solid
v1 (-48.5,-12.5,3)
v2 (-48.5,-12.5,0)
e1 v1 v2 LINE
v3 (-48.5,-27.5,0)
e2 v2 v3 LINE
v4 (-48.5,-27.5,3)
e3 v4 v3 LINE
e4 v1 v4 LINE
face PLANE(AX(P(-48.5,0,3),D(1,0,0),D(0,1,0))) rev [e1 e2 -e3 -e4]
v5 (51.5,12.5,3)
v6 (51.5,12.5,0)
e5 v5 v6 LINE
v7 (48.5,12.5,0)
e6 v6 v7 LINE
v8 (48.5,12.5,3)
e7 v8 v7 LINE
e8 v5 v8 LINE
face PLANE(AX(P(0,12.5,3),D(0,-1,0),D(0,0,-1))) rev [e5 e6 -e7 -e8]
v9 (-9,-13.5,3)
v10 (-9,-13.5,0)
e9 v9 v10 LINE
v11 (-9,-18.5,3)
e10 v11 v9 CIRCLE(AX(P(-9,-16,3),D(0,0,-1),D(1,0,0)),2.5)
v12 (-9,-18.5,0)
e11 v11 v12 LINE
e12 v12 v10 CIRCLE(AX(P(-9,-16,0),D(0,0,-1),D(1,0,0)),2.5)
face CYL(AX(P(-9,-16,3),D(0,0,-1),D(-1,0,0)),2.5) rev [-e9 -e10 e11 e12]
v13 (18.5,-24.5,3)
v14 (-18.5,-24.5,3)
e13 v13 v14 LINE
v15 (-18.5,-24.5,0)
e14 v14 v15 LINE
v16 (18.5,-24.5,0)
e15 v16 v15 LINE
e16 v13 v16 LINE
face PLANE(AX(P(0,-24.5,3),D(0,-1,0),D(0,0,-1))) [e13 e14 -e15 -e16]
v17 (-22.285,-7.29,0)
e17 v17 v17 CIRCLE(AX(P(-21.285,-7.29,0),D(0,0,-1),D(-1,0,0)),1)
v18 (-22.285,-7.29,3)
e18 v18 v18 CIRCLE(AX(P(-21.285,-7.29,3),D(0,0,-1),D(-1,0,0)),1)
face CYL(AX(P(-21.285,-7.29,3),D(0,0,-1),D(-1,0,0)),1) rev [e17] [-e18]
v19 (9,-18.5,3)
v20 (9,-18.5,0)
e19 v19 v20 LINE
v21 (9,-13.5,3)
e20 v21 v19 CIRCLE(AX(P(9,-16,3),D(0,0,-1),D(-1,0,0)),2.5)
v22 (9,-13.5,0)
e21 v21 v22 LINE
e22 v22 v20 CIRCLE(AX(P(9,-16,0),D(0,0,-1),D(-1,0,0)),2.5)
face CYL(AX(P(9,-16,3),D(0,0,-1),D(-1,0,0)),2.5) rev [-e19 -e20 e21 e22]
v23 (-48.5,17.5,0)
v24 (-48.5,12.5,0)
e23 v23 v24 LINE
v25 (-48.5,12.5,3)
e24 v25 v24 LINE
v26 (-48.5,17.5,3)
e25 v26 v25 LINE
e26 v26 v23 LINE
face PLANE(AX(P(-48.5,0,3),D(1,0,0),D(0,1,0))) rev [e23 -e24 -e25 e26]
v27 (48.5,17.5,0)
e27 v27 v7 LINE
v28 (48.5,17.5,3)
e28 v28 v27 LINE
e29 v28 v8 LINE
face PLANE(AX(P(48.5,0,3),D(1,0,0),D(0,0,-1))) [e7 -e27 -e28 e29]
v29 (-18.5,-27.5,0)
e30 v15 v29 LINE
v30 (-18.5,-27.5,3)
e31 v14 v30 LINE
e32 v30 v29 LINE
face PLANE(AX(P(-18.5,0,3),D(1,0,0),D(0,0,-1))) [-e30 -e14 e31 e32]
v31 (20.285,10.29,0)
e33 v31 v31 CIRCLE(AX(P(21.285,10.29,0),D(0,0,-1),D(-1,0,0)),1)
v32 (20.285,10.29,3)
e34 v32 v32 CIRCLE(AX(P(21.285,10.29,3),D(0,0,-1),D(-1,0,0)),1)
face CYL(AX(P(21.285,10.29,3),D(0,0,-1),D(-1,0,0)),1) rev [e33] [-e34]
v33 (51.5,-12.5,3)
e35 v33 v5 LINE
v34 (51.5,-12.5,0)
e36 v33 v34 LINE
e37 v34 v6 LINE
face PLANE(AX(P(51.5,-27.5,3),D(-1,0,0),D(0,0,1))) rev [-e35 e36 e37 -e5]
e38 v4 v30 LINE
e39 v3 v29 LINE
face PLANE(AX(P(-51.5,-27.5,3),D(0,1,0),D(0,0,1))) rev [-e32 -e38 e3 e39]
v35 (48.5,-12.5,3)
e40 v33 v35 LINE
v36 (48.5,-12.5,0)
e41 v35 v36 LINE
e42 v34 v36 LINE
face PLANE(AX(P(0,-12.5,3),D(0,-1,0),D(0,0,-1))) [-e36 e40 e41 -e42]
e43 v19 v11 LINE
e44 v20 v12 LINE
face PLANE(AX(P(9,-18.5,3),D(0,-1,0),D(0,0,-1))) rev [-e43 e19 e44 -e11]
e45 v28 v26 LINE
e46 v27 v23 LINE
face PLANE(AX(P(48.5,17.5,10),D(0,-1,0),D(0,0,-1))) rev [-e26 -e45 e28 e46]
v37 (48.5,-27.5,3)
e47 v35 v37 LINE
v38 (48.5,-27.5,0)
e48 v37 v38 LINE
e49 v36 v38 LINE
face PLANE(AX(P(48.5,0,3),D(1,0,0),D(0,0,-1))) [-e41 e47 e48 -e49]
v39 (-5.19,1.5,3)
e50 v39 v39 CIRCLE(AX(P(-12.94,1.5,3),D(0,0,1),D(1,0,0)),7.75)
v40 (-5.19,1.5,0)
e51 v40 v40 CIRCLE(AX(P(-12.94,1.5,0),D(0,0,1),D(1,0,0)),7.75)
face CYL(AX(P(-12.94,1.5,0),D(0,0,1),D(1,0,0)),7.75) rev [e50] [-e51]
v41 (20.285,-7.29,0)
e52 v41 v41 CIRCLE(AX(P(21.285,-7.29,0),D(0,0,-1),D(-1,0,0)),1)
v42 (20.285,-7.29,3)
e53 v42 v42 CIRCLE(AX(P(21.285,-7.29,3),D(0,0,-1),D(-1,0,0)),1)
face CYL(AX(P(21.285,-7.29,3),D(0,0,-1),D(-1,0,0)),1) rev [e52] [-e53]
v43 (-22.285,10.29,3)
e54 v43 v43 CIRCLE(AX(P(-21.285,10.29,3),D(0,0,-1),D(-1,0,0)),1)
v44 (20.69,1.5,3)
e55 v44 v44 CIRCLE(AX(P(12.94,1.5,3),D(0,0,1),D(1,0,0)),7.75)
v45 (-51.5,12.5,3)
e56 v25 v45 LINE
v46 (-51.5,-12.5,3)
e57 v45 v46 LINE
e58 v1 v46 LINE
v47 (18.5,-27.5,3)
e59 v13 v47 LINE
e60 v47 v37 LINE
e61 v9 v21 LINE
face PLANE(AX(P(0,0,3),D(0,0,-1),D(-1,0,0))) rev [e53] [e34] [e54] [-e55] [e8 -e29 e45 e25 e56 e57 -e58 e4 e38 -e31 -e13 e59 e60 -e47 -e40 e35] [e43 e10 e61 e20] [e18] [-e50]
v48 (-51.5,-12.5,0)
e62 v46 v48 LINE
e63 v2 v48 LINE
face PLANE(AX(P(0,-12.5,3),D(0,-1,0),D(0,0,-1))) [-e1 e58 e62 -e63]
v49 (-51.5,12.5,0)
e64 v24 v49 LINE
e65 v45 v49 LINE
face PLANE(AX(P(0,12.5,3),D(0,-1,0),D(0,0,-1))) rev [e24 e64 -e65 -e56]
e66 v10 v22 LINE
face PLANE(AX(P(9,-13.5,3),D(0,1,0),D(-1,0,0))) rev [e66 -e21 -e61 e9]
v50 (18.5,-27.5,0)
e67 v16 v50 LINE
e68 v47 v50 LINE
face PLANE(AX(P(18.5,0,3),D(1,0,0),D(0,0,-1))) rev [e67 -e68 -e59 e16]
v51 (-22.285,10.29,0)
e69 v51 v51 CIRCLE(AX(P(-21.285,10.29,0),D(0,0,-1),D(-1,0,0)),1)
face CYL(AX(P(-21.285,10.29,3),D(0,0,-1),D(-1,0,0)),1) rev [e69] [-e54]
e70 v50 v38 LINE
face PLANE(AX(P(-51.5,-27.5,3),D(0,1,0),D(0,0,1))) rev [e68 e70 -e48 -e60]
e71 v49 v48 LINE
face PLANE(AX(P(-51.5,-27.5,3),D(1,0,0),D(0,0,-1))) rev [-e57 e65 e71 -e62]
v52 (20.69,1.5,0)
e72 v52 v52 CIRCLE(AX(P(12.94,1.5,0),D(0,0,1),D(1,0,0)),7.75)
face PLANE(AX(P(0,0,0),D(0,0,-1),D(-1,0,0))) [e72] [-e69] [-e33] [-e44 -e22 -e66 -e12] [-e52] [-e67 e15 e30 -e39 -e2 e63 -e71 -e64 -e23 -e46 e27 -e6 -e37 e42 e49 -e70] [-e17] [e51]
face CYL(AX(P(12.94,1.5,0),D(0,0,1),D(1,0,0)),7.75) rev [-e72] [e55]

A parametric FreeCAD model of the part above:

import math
import FreeCAD as App
import Part
import Sketcher

V = App.Vector
Q = App.Units.Quantity

doc = App.newDocument("Part")
params = doc.addObject("Spreadsheet::Sheet", "Params")
for row, (alias, value) in enumerate([
    ("sketch1_width", "103 mm"),
    ("sketch1_height", "55 mm"),
    ("pad1_length", "3 mm"),
    ("sketch2_width", "3 mm"),
    ("sketch2_height", "15 mm"),
    ("sketch3_width", "37 mm"),
    ("sketch3_height", "3 mm"),
    ("sketch4_width", "97 mm"),
    ("sketch4_height", "10 mm"),
    ("pocket3_length", "10 mm"),
    ("sketch5_diameter", "15.5 mm"),
    ("sketch6_radius", "2.5 mm"),
    ("sketch6_width", "18 mm"),
    ("sketch7_diameter", "2 mm"),
], start=1):
    params.set(f"A{row}", alias)
    params.set(f"B{row}", "=" + value)
    params.setAlias(f"B{row}", alias)

body = doc.addObject("PartDesign::Body", "Body")

# Sketch on XY plane
sketch1 = doc.addObject("Sketcher::SketchObject", "Sketch")
body.addObject(sketch1)
sketch1.AttachmentSupport = (doc.XY_Plane, [""])
sketch1.MapMode = "FlatFace"
sketch1.addGeometry([
    Part.LineSegment(V(-51.5, 27.5, 0), V(-51.5, -27.5, 0)),
    Part.LineSegment(V(-51.5, -27.5, 0), V(51.5, -27.5, 0)),
    Part.LineSegment(V(51.5, -27.5, 0), V(51.5, 27.5, 0)),
    Part.LineSegment(V(51.5, 27.5, 0), V(-51.5, 27.5, 0)),
], False)
sketch1.addConstraint([
    Sketcher.Constraint("Coincident", 0, 2, 1, 1),
    Sketcher.Constraint("Coincident", 1, 2, 2, 1),
    Sketcher.Constraint("Coincident", 2, 2, 3, 1),
    Sketcher.Constraint("Coincident", 3, 2, 0, 1),
    Sketcher.Constraint("Vertical", 0),
    Sketcher.Constraint("Horizontal", 1),
    Sketcher.Constraint("Vertical", 2),
    Sketcher.Constraint("Horizontal", 3),
    Sketcher.Constraint("Symmetric", 0, 2, 2, 2, -1, 1),
    Sketcher.Constraint("DistanceX", 1, 1, 1, 2, Q("103 mm")),
    Sketcher.Constraint("DistanceY", 0, 2, 0, 1, Q("55 mm")),
])
sketch1.setExpression("Constraints[9]", "Params.sketch1_width")
sketch1.setExpression("Constraints[10]", "Params.sketch1_height")
pad1 = doc.addObject("PartDesign::Pad", "Pad")
body.addObject(pad1)
pad1.Profile = sketch1
pad1.setExpression("Length", "Params.pad1_length")

# Sketch on XY plane
sketch2 = doc.addObject("Sketcher::SketchObject", "Sketch001")
body.addObject(sketch2)
sketch2.AttachmentSupport = (doc.XY_Plane, [""])
sketch2.MapMode = "FlatFace"
sketch2.addGeometry([
    Part.LineSegment(V(51.5, 27.5, 0), V(51.5, 12.5, 0)),  # 0
    Part.LineSegment(V(51.5, 12.5, 0), V(48.5, 12.5, 0)),  # 1
    Part.LineSegment(V(48.5, 12.5, 0), V(48.5, 27.5, 0)),  # 2
    Part.LineSegment(V(48.5, 27.5, 0), V(51.5, 27.5, 0)),  # 3
    Part.LineSegment(V(51.5, -12.5, 0), V(51.5, -27.5, 0)),  # 4
    Part.LineSegment(V(51.5, -27.5, 0), V(48.5, -27.5, 0)),  # 5
    Part.LineSegment(V(48.5, -27.5, 0), V(48.5, -12.5, 0)),  # 6
    Part.LineSegment(V(48.5, -12.5, 0), V(51.5, -12.5, 0)),  # 7
    Part.LineSegment(V(-48.5, 27.5, 0), V(-48.5, 12.5, 0)),  # 8
    Part.LineSegment(V(-48.5, 12.5, 0), V(-51.5, 12.5, 0)),  # 9
    Part.LineSegment(V(-51.5, 12.5, 0), V(-51.5, 27.5, 0)),  # 10
    Part.LineSegment(V(-51.5, 27.5, 0), V(-48.5, 27.5, 0)),  # 11
    Part.LineSegment(V(-48.5, -12.5, 0), V(-48.5, -27.5, 0)),  # 12
    Part.LineSegment(V(-48.5, -27.5, 0), V(-51.5, -27.5, 0)),  # 13
    Part.LineSegment(V(-51.5, -27.5, 0), V(-51.5, -12.5, 0)),  # 14
    Part.LineSegment(V(-51.5, -12.5, 0), V(-48.5, -12.5, 0)),  # 15
], False)
sketch2.addConstraint([
    Sketcher.Constraint("Coincident", 0, 2, 1, 1),
    Sketcher.Constraint("Coincident", 1, 2, 2, 1),
    Sketcher.Constraint("Coincident", 2, 2, 3, 1),
    Sketcher.Constraint("Coincident", 3, 2, 0, 1),
    Sketcher.Constraint("Coincident", 4, 2, 5, 1),
    Sketcher.Constraint("Coincident", 5, 2, 6, 1),
    Sketcher.Constraint("Coincident", 6, 2, 7, 1),
    Sketcher.Constraint("Coincident", 7, 2, 4, 1),
    Sketcher.Constraint("Coincident", 8, 2, 9, 1),
    Sketcher.Constraint("Coincident", 9, 2, 10, 1),
    Sketcher.Constraint("Coincident", 10, 2, 11, 1),
    Sketcher.Constraint("Coincident", 11, 2, 8, 1),
    Sketcher.Constraint("Coincident", 12, 2, 13, 1),
    Sketcher.Constraint("Coincident", 13, 2, 14, 1),
    Sketcher.Constraint("Coincident", 14, 2, 15, 1),
    Sketcher.Constraint("Coincident", 15, 2, 12, 1),
    Sketcher.Constraint("Vertical", 0),
    Sketcher.Constraint("Horizontal", 1),
    Sketcher.Constraint("Vertical", 2),
    Sketcher.Constraint("Horizontal", 3),
    Sketcher.Constraint("Vertical", 4),
    Sketcher.Constraint("Horizontal", 5),
    Sketcher.Constraint("Vertical", 6),
    Sketcher.Constraint("Horizontal", 7),
    Sketcher.Constraint("Vertical", 8),
    Sketcher.Constraint("Horizontal", 9),
    Sketcher.Constraint("Vertical", 10),
    Sketcher.Constraint("Horizontal", 11),
    Sketcher.Constraint("Vertical", 12),
    Sketcher.Constraint("Horizontal", 13),
    Sketcher.Constraint("Vertical", 14),
    Sketcher.Constraint("Horizontal", 15),
    Sketcher.Constraint("Symmetric", 6, 2, 8, 2, -1, 1),
    Sketcher.Constraint("Symmetric", 4, 2, 10, 2, -1, 1),
    Sketcher.Constraint("Symmetric", 2, 2, 12, 2, -1, 1),
    Sketcher.Constraint("Symmetric", 0, 2, 14, 2, -1, 1),
    Sketcher.Constraint("Symmetric", 1, 2, 8, 2, -2),
    Sketcher.Constraint("Symmetric", 3, 2, 10, 2, -2),
    Sketcher.Constraint("DistanceX", 1, 2, 1, 1, Q("3 mm")),
    Sketcher.Constraint("DistanceY", 0, 2, 0, 1, Q("15 mm")),
    Sketcher.Constraint("DistanceY", 4, 2, 0, 2, Q("40 mm")),
    Sketcher.Constraint("DistanceX", 8, 2, 1, 2, Q("97 mm")),
])
sketch2.setExpression("Constraints[38]", "Params.sketch2_width")
sketch2.setExpression("Constraints[39]", "Params.sketch2_height")
pocket1 = doc.addObject("PartDesign::Pocket", "Pocket")
body.addObject(pocket1)
pocket1.Profile = sketch2
pocket1.Type = "ThroughAll"
pocket1.Reversed = True

# Sketch on XY plane
sketch3 = doc.addObject("Sketcher::SketchObject", "Sketch002")
body.addObject(sketch3)
sketch3.AttachmentSupport = (doc.XY_Plane, [""])
sketch3.MapMode = "FlatFace"
sketch3.addGeometry([
    Part.LineSegment(V(18.5, -24.5, 0), V(18.5, -27.5, 0)),
    Part.LineSegment(V(18.5, -27.5, 0), V(-18.5, -27.5, 0)),
    Part.LineSegment(V(-18.5, -27.5, 0), V(-18.5, -24.5, 0)),
    Part.LineSegment(V(-18.5, -24.5, 0), V(18.5, -24.5, 0)),
], False)
sketch3.addConstraint([
    Sketcher.Constraint("Coincident", 0, 2, 1, 1),
    Sketcher.Constraint("Coincident", 1, 2, 2, 1),
    Sketcher.Constraint("Coincident", 2, 2, 3, 1),
    Sketcher.Constraint("Coincident", 3, 2, 0, 1),
    Sketcher.Constraint("Vertical", 0),
    Sketcher.Constraint("Horizontal", 1),
    Sketcher.Constraint("Vertical", 2),
    Sketcher.Constraint("Horizontal", 3),
    Sketcher.Constraint("DistanceX", 1, 2, 1, 1, Q("37 mm")),
    Sketcher.Constraint("DistanceY", 0, 2, 0, 1, Q("3 mm")),
    Sketcher.Constraint("DistanceX", -1, 1, 0, 2, Q("18.5 mm")),
    Sketcher.Constraint("DistanceY", 0, 2, -1, 1, Q("27.5 mm")),
])
sketch3.setExpression("Constraints[8]", "Params.sketch3_width")
sketch3.setExpression("Constraints[9]", "Params.sketch3_height")
pocket2 = doc.addObject("PartDesign::Pocket", "Pocket001")
body.addObject(pocket2)
pocket2.Profile = sketch3
pocket2.Type = "ThroughAll"
pocket2.Reversed = True

# Sketch on XY plane
sketch4 = doc.addObject("Sketcher::SketchObject", "Sketch003")
body.addObject(sketch4)
sketch4.AttachmentSupport = (doc.XY_Plane, [""])
sketch4.MapMode = "FlatFace"
sketch4.addGeometry([
    Part.LineSegment(V(48.5, 27.5, 0), V(48.5, 17.5, 0)),
    Part.LineSegment(V(48.5, 17.5, 0), V(-48.5, 17.5, 0)),
    Part.LineSegment(V(-48.5, 17.5, 0), V(-48.5, 27.5, 0)),
    Part.LineSegment(V(-48.5, 27.5, 0), V(48.5, 27.5, 0)),
], False)
sketch4.addConstraint([
    Sketcher.Constraint("Coincident", 0, 2, 1, 1),
    Sketcher.Constraint("Coincident", 1, 2, 2, 1),
    Sketcher.Constraint("Coincident", 2, 2, 3, 1),
    Sketcher.Constraint("Coincident", 3, 2, 0, 1),
    Sketcher.Constraint("Vertical", 0),
    Sketcher.Constraint("Horizontal", 1),
    Sketcher.Constraint("Vertical", 2),
    Sketcher.Constraint("Horizontal", 3),
    Sketcher.Constraint("DistanceX", 1, 2, 1, 1, Q("97 mm")),
    Sketcher.Constraint("DistanceY", 0, 2, 0, 1, Q("10 mm")),
    Sketcher.Constraint("DistanceX", -1, 1, 0, 2, Q("48.5 mm")),
    Sketcher.Constraint("DistanceY", -1, 1, 0, 2, Q("17.5 mm")),
])
sketch4.setExpression("Constraints[8]", "Params.sketch4_width")
sketch4.setExpression("Constraints[9]", "Params.sketch4_height")
pocket3 = doc.addObject("PartDesign::Pocket", "Pocket002")
body.addObject(pocket3)
pocket3.Profile = sketch4
pocket3.setExpression("Length", "Params.pocket3_length")
pocket3.Reversed = True

# Sketch on XY plane
sketch5 = doc.addObject("Sketcher::SketchObject", "Sketch004")
body.addObject(sketch5)
sketch5.AttachmentSupport = (doc.XY_Plane, [""])
sketch5.MapMode = "FlatFace"
sketch5.AttachmentOffset = App.Placement(V(0, 0, 3), App.Rotation())
sketch5.addGeometry([
    Part.Circle(V(-12.94, 1.5, 0), V(0, 0, 1), 7.75),
    Part.Circle(V(12.94, 1.5, 0), V(0, 0, 1), 7.75),
], False)
sketch5.addConstraint([
    Sketcher.Constraint("Equal", 0, 1),
    Sketcher.Constraint("Symmetric", 0, 3, 1, 3, -2),
    Sketcher.Constraint("Diameter", 0, Q("15.5 mm")),
    Sketcher.Constraint("DistanceY", -1, 1, 0, 3, Q("1.5 mm")),
    Sketcher.Constraint("DistanceX", 0, 3, -1, 1, Q("12.94 mm")),
])
sketch5.setExpression("Constraints[2]", "Params.sketch5_diameter")
pocket4 = doc.addObject("PartDesign::Pocket", "Pocket003")
body.addObject(pocket4)
pocket4.Profile = sketch5
pocket4.Type = "ThroughAll"

# Sketch on XY plane
sketch6 = doc.addObject("Sketcher::SketchObject", "Sketch005")
body.addObject(sketch6)
sketch6.AttachmentSupport = (doc.XY_Plane, [""])
sketch6.MapMode = "FlatFace"
sketch6.addGeometry([
    Part.LineSegment(V(9, -18.5, 0), V(-9, -18.5, 0)),
    Part.ArcOfCircle(Part.Circle(V(-9, -16, 0), V(0, 0, 1), 2.5), math.radians(90), math.radians(270)),
    Part.LineSegment(V(-9, -13.5, 0), V(9, -13.5, 0)),
    Part.ArcOfCircle(Part.Circle(V(9, -16, 0), V(0, 0, 1), 2.5), math.radians(-90), math.radians(90)),
], False)
sketch6.addConstraint([
    Sketcher.Constraint("Tangent", 0, 2, 1, 2),
    Sketcher.Constraint("Tangent", 1, 1, 2, 1),
    Sketcher.Constraint("Tangent", 2, 2, 3, 2),
    Sketcher.Constraint("Tangent", 3, 1, 0, 1),
    Sketcher.Constraint("Horizontal", 0),
    Sketcher.Constraint("Horizontal", 2),
    Sketcher.Constraint("Radius", 1, Q("2.5 mm")),
    Sketcher.Constraint("DistanceX", 0, 2, 0, 1, Q("18 mm")),
    Sketcher.Constraint("DistanceX", 1, 3, -1, 1, Q("9 mm")),
    Sketcher.Constraint("DistanceY", 1, 3, -1, 1, Q("16 mm")),
])
sketch6.setExpression("Constraints[6]", "Params.sketch6_radius")
sketch6.setExpression("Constraints[7]", "Params.sketch6_width")
pocket5 = doc.addObject("PartDesign::Pocket", "Pocket004")
body.addObject(pocket5)
pocket5.Profile = sketch6
pocket5.Type = "ThroughAll"
pocket5.Reversed = True

# Sketch on XY plane
sketch7 = doc.addObject("Sketcher::SketchObject", "Sketch006")
body.addObject(sketch7)
sketch7.AttachmentSupport = (doc.XY_Plane, [""])
sketch7.MapMode = "FlatFace"
sketch7.addGeometry([
    Part.Circle(V(21.285, 10.29, 0), V(0, 0, 1), 1),
    Part.Circle(V(21.285, -7.29, 0), V(0, 0, 1), 1),
    Part.Circle(V(-21.285, -7.29, 0), V(0, 0, 1), 1),
    Part.Circle(V(-21.285, 10.29, 0), V(0, 0, 1), 1),
], False)
sketch7.addConstraint([
    Sketcher.Constraint("Equal", 0, 1),
    Sketcher.Constraint("Equal", 1, 2),
    Sketcher.Constraint("Equal", 2, 3),
    Sketcher.Constraint("Symmetric", 1, 3, 2, 3, -2),
    Sketcher.Constraint("Symmetric", 0, 3, 3, 3, -2),
    Sketcher.Constraint("Vertical", 0, 3, 1, 3),
    Sketcher.Constraint("Diameter", 0, Q("2 mm")),
    Sketcher.Constraint("DistanceY", -1, 1, 0, 3, Q("10.29 mm")),
    Sketcher.Constraint("DistanceY", 1, 3, -1, 1, Q("7.29 mm")),
    Sketcher.Constraint("DistanceX", 2, 3, 1, 3, Q("42.57 mm")),
])
sketch7.setExpression("Constraints[6]", "Params.sketch7_diameter")
pocket6 = doc.addObject("PartDesign::Pocket", "Pocket005")
body.addObject(pocket6)
pocket6.Profile = sketch7
pocket6.Type = "ThroughAll"
pocket6.Reversed = True

doc.recompute()
